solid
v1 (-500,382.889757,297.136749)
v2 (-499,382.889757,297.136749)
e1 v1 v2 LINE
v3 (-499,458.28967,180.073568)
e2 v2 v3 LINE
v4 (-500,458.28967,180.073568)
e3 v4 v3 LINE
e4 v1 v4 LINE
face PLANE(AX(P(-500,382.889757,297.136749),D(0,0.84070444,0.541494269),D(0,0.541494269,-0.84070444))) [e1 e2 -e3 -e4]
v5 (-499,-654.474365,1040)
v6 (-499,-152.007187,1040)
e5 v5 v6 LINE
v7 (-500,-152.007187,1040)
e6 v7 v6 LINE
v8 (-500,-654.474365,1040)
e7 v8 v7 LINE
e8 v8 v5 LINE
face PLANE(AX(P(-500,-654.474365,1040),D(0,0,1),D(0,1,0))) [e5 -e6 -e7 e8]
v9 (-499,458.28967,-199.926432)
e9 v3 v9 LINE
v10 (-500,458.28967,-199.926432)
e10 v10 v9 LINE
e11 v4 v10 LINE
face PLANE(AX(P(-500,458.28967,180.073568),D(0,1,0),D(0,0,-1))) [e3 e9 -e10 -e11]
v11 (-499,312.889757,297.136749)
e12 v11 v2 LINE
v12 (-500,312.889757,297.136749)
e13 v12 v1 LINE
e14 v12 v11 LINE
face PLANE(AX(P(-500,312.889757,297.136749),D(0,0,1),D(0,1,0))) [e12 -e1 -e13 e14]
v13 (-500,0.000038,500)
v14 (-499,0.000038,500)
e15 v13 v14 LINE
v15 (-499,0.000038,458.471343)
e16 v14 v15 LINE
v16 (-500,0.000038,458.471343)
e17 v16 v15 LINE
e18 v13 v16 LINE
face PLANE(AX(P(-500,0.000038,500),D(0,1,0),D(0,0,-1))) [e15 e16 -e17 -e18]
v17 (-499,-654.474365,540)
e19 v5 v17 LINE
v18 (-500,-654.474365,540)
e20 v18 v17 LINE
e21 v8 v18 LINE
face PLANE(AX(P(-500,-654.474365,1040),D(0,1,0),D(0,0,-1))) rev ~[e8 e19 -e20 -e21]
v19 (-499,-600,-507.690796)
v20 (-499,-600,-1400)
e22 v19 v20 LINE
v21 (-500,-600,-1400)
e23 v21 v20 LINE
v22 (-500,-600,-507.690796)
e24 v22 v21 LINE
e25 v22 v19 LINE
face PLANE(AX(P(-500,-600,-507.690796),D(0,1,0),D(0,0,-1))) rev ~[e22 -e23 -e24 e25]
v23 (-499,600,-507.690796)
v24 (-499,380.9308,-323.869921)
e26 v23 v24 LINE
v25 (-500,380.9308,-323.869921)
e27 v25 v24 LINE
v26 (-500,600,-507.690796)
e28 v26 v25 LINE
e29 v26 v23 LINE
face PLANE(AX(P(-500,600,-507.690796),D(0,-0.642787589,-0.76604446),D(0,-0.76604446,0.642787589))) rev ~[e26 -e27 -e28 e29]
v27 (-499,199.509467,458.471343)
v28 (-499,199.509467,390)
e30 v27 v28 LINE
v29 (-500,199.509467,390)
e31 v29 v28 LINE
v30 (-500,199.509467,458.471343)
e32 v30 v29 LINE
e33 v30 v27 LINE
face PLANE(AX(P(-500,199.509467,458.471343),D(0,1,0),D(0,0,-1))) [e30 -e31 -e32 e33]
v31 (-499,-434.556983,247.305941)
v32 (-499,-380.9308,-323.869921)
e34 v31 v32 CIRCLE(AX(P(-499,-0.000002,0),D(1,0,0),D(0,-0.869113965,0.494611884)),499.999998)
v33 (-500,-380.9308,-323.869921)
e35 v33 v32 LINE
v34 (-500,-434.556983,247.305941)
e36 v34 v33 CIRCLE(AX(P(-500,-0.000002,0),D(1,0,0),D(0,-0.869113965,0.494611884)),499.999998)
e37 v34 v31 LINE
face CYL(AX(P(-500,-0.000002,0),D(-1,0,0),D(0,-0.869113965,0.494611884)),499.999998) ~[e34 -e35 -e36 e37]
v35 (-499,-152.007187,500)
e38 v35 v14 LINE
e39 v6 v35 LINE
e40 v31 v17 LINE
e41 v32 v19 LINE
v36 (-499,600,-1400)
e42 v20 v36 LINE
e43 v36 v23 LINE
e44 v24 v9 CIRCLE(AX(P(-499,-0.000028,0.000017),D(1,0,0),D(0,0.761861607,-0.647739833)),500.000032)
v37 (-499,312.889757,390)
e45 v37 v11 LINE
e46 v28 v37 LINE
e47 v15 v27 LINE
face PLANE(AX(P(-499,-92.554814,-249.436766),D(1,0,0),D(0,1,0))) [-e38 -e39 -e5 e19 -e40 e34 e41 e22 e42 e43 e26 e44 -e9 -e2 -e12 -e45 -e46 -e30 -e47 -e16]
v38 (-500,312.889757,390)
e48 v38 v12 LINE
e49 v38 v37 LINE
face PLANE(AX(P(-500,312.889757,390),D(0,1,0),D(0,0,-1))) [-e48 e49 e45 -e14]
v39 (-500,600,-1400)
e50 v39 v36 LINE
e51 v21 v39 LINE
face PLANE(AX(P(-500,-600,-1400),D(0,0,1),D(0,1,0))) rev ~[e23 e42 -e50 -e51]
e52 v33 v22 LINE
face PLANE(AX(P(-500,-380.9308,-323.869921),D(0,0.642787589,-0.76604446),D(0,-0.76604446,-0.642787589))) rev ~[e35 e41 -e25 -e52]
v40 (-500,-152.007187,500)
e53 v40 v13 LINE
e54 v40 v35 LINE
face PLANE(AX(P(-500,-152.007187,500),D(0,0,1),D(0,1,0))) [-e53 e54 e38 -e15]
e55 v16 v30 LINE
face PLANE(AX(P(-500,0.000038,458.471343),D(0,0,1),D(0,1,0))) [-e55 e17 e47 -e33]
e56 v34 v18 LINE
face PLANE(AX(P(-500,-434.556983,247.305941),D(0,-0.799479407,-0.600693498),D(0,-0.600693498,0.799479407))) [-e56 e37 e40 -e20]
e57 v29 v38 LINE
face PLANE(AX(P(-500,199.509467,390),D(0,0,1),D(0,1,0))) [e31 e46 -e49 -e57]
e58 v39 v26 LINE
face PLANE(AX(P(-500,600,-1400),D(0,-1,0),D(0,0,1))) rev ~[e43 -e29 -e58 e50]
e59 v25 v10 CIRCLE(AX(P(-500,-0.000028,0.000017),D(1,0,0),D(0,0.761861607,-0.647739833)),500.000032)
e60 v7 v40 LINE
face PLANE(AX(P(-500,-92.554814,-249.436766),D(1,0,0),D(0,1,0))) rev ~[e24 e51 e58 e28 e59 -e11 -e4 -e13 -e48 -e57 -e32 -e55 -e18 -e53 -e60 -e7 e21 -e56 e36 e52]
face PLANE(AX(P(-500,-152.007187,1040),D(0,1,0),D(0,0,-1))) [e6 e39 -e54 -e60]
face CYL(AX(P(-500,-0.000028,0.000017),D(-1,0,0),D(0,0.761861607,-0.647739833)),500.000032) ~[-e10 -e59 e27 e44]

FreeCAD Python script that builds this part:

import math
import FreeCAD as App
import Part
import Sketcher
from FreeCAD import Vector
Q = App.Units.Quantity

doc = App.newDocument("Part")
params = doc.addObject("Spreadsheet::Sheet", "Params")
for row, (alias, value) in enumerate([
    ("sketch1_radius", "499.999998 mm"),
    ("sketch1_width", "1200 mm"),
    ("sketch1_width2", "70 mm"),
    ("sketch1_height", "380 mm"),
    ("sketch1_height2", "540 mm"),
    ("pad1_length", "1 mm"),
], start=1):
    params.set(f"A{row}", alias)
    params.set(f"B{row}", "=" + value)
    params.setAlias(f"B{row}", alias)

body = doc.addObject("PartDesign::Body", "Body")

sketch1 = body.newObject("Sketcher::SketchObject", "Sketch")
sketch1.AttachmentSupport = (doc.getObject("YZ_Plane"), [""])
sketch1.MapMode = "FlatFace"
sketch1.AttachmentOffset = App.Placement(Vector(0, 0, -500), App.Rotation())
sketch1.addGeometry([
    Part.ArcOfCircle(Part.Circle(Vector(-0.000002, 0, 0), Vector(0, 0, 1), 499.999998), math.radians(150.355839), math.radians(220.371412)),
    Part.LineSegment(Vector(-380.9308, -323.869921, 0), Vector(-600, -507.690796, 0)),
    Part.LineSegment(Vector(-600, -507.690796, 0), Vector(-600, -1400, 0)),
    Part.LineSegment(Vector(-600, -1400, 0), Vector(600, -1400, 0)),
    Part.LineSegment(Vector(600, -1400, 0), Vector(600, -507.690796, 0)),
    Part.LineSegment(Vector(600, -507.690796, 0), Vector(380.9308, -323.869921, 0)),
    Part.ArcOfCircle(Part.Circle(Vector(-0.000028, 0.000017, 0), Vector(0, 0, 1), 500.000032), math.radians(-40.371411), math.radians(-23.568981)),
    Part.LineSegment(Vector(458.28967, -199.926432, 0), Vector(458.28967, 180.073568, 0)),
    Part.LineSegment(Vector(458.28967, 180.073568, 0), Vector(382.889757, 297.136749, 0)),
    Part.LineSegment(Vector(382.889757, 297.136749, 0), Vector(312.889757, 297.136749, 0)),
    Part.LineSegment(Vector(312.889757, 297.136749, 0), Vector(312.889757, 390, 0)),
    Part.LineSegment(Vector(312.889757, 390, 0), Vector(199.509467, 390, 0)),
    Part.LineSegment(Vector(199.509467, 390, 0), Vector(199.509467, 458.471343, 0)),
    Part.LineSegment(Vector(199.509467, 458.471343, 0), Vector(0.000038, 458.471343, 0)),
    Part.LineSegment(Vector(0.000038, 458.471343, 0), Vector(0.000038, 500, 0)),
    Part.LineSegment(Vector(0.000038, 500, 0), Vector(-152.007187, 500, 0)),
    Part.LineSegment(Vector(-152.007187, 500, 0), Vector(-152.007187, 1040, 0)),
    Part.LineSegment(Vector(-152.007187, 1040, 0), Vector(-654.474365, 1040, 0)),
    Part.LineSegment(Vector(-654.474365, 1040, 0), Vector(-654.474365, 540, 0)),
    Part.LineSegment(Vector(-654.474365, 540, 0), Vector(-434.556983, 247.305941, 0)),
], False)
sketch1.addConstraint([
    Sketcher.Constraint("Coincident", 0, 2, 1, 1),
    Sketcher.Constraint("Coincident", 1, 2, 2, 1),
    Sketcher.Constraint("Coincident", 2, 2, 3, 1),
    Sketcher.Constraint("Coincident", 3, 2, 4, 1),
    Sketcher.Constraint("Coincident", 4, 2, 5, 1),
    Sketcher.Constraint("Coincident", 5, 2, 6, 1),
    Sketcher.Constraint("Coincident", 6, 2, 7, 1),
    Sketcher.Constraint("Coincident", 7, 2, 8, 1),
    Sketcher.Constraint("Coincident", 8, 2, 9, 1),
    Sketcher.Constraint("Coincident", 9, 2, 10, 1),
    Sketcher.Constraint("Coincident", 10, 2, 11, 1),
    Sketcher.Constraint("Coincident", 11, 2, 12, 1),
    Sketcher.Constraint("Coincident", 12, 2, 13, 1),
    Sketcher.Constraint("Coincident", 13, 2, 14, 1),
    Sketcher.Constraint("Coincident", 14, 2, 15, 1),
    Sketcher.Constraint("Coincident", 15, 2, 16, 1),
    Sketcher.Constraint("Coincident", 16, 2, 17, 1),
    Sketcher.Constraint("Coincident", 17, 2, 18, 1),
    Sketcher.Constraint("Coincident", 18, 2, 19, 1),
    Sketcher.Constraint("Coincident", 19, 2, 0, 1),
    Sketcher.Constraint("Vertical", 2),
    Sketcher.Constraint("Horizontal", 3),
    Sketcher.Constraint("Vertical", 4),
    Sketcher.Constraint("Vertical", 7),
    Sketcher.Constraint("Horizontal", 9),
    Sketcher.Constraint("Vertical", 10),
    Sketcher.Constraint("Horizontal", 11),
    Sketcher.Constraint("Vertical", 12),
    Sketcher.Constraint("Horizontal", 13),
    Sketcher.Constraint("Vertical", 14),
    Sketcher.Constraint("Horizontal", 15),
    Sketcher.Constraint("Vertical", 16),
    Sketcher.Constraint("Horizontal", 17),
    Sketcher.Constraint("Vertical", 18),
    Sketcher.Constraint("Coincident", 0, 3, -1, 1),
    Sketcher.Constraint("Symmetric", 1, 2, 4, 2, -2),
    Sketcher.Constraint("Symmetric", 0, 2, 5, 2, -2),
    Sketcher.Constraint("Radius", 0, Q("499.999998 mm")),
    Sketcher.Constraint("DistanceX", 3, 1, 3, 2, Q("1200 mm")),
    Sketcher.Constraint("DistanceX", 9, 2, 9, 1, Q("70 mm")),
    Sketcher.Constraint("DistanceY", 7, 1, 7, 2, Q("380 mm")),
    Sketcher.Constraint("DistanceY", 16, 1, 16, 2, Q("540 mm")),
    Sketcher.Constraint("DistanceY", 18, 2, 18, 1, Q("500 mm")),
    Sketcher.Constraint("Angle", 1, Q("-140.000002 deg")),
    Sketcher.Constraint("DistanceY", 2, 2, -1, 1, Q("1400 mm")),
    Sketcher.Constraint("DistanceY", -1, 1, 10, 2, Q("390 mm")),
    Sketcher.Constraint("DistanceY", -1, 1, 14, 2, Q("500 mm")),
    Sketcher.Constraint("Radius", 6, Q("500.000032 mm")),
    Sketcher.Constraint("DistanceX", 11, 2, 11, 1, Q("113.38029 mm")),
    Sketcher.Constraint("DistanceX", 13, 2, 13, 1, Q("199.509429 mm")),
    Sketcher.Constraint("DistanceX", 17, 2, 17, 1, Q("502.467178 mm")),
    Sketcher.Constraint("DistanceY", 10, 1, 10, 2, Q("92.863251 mm")),
    Sketcher.Constraint("DistanceX", -1, 1, 5, 2, Q("380.9308 mm")),
    Sketcher.Constraint("DistanceX", 6, 3, 6, 2, Q("458.289698 mm")),
    Sketcher.Constraint("DistanceY", 19, 2, 13, 2, Q("211.165402 mm")),
    Sketcher.Constraint("DistanceX", 15, 2, 15, 1, Q("152.007225 mm")),
    Sketcher.Constraint("DistanceY", 12, 1, 12, 2, Q("68.471343 mm")),
    Sketcher.Constraint("DistanceX", -1, 1, 7, 2, Q("458.28967 mm")),
    Sketcher.Constraint("DistanceX", 0, 3, 8, 2, Q("382.889759 mm")),
])
sketch1.setExpression("Constraints[37]", "Params.sketch1_radius")
sketch1.setExpression("Constraints[38]", "Params.sketch1_width")
sketch1.setExpression("Constraints[39]", "Params.sketch1_width2")
sketch1.setExpression("Constraints[40]", "Params.sketch1_height")
sketch1.setExpression("Constraints[41]", "Params.sketch1_height2")
pad1 = body.newObject("PartDesign::Pad", "Pad")
pad1.Profile = sketch1
pad1.setExpression("Length", "Params.pad1_length")

doc.recompute()
